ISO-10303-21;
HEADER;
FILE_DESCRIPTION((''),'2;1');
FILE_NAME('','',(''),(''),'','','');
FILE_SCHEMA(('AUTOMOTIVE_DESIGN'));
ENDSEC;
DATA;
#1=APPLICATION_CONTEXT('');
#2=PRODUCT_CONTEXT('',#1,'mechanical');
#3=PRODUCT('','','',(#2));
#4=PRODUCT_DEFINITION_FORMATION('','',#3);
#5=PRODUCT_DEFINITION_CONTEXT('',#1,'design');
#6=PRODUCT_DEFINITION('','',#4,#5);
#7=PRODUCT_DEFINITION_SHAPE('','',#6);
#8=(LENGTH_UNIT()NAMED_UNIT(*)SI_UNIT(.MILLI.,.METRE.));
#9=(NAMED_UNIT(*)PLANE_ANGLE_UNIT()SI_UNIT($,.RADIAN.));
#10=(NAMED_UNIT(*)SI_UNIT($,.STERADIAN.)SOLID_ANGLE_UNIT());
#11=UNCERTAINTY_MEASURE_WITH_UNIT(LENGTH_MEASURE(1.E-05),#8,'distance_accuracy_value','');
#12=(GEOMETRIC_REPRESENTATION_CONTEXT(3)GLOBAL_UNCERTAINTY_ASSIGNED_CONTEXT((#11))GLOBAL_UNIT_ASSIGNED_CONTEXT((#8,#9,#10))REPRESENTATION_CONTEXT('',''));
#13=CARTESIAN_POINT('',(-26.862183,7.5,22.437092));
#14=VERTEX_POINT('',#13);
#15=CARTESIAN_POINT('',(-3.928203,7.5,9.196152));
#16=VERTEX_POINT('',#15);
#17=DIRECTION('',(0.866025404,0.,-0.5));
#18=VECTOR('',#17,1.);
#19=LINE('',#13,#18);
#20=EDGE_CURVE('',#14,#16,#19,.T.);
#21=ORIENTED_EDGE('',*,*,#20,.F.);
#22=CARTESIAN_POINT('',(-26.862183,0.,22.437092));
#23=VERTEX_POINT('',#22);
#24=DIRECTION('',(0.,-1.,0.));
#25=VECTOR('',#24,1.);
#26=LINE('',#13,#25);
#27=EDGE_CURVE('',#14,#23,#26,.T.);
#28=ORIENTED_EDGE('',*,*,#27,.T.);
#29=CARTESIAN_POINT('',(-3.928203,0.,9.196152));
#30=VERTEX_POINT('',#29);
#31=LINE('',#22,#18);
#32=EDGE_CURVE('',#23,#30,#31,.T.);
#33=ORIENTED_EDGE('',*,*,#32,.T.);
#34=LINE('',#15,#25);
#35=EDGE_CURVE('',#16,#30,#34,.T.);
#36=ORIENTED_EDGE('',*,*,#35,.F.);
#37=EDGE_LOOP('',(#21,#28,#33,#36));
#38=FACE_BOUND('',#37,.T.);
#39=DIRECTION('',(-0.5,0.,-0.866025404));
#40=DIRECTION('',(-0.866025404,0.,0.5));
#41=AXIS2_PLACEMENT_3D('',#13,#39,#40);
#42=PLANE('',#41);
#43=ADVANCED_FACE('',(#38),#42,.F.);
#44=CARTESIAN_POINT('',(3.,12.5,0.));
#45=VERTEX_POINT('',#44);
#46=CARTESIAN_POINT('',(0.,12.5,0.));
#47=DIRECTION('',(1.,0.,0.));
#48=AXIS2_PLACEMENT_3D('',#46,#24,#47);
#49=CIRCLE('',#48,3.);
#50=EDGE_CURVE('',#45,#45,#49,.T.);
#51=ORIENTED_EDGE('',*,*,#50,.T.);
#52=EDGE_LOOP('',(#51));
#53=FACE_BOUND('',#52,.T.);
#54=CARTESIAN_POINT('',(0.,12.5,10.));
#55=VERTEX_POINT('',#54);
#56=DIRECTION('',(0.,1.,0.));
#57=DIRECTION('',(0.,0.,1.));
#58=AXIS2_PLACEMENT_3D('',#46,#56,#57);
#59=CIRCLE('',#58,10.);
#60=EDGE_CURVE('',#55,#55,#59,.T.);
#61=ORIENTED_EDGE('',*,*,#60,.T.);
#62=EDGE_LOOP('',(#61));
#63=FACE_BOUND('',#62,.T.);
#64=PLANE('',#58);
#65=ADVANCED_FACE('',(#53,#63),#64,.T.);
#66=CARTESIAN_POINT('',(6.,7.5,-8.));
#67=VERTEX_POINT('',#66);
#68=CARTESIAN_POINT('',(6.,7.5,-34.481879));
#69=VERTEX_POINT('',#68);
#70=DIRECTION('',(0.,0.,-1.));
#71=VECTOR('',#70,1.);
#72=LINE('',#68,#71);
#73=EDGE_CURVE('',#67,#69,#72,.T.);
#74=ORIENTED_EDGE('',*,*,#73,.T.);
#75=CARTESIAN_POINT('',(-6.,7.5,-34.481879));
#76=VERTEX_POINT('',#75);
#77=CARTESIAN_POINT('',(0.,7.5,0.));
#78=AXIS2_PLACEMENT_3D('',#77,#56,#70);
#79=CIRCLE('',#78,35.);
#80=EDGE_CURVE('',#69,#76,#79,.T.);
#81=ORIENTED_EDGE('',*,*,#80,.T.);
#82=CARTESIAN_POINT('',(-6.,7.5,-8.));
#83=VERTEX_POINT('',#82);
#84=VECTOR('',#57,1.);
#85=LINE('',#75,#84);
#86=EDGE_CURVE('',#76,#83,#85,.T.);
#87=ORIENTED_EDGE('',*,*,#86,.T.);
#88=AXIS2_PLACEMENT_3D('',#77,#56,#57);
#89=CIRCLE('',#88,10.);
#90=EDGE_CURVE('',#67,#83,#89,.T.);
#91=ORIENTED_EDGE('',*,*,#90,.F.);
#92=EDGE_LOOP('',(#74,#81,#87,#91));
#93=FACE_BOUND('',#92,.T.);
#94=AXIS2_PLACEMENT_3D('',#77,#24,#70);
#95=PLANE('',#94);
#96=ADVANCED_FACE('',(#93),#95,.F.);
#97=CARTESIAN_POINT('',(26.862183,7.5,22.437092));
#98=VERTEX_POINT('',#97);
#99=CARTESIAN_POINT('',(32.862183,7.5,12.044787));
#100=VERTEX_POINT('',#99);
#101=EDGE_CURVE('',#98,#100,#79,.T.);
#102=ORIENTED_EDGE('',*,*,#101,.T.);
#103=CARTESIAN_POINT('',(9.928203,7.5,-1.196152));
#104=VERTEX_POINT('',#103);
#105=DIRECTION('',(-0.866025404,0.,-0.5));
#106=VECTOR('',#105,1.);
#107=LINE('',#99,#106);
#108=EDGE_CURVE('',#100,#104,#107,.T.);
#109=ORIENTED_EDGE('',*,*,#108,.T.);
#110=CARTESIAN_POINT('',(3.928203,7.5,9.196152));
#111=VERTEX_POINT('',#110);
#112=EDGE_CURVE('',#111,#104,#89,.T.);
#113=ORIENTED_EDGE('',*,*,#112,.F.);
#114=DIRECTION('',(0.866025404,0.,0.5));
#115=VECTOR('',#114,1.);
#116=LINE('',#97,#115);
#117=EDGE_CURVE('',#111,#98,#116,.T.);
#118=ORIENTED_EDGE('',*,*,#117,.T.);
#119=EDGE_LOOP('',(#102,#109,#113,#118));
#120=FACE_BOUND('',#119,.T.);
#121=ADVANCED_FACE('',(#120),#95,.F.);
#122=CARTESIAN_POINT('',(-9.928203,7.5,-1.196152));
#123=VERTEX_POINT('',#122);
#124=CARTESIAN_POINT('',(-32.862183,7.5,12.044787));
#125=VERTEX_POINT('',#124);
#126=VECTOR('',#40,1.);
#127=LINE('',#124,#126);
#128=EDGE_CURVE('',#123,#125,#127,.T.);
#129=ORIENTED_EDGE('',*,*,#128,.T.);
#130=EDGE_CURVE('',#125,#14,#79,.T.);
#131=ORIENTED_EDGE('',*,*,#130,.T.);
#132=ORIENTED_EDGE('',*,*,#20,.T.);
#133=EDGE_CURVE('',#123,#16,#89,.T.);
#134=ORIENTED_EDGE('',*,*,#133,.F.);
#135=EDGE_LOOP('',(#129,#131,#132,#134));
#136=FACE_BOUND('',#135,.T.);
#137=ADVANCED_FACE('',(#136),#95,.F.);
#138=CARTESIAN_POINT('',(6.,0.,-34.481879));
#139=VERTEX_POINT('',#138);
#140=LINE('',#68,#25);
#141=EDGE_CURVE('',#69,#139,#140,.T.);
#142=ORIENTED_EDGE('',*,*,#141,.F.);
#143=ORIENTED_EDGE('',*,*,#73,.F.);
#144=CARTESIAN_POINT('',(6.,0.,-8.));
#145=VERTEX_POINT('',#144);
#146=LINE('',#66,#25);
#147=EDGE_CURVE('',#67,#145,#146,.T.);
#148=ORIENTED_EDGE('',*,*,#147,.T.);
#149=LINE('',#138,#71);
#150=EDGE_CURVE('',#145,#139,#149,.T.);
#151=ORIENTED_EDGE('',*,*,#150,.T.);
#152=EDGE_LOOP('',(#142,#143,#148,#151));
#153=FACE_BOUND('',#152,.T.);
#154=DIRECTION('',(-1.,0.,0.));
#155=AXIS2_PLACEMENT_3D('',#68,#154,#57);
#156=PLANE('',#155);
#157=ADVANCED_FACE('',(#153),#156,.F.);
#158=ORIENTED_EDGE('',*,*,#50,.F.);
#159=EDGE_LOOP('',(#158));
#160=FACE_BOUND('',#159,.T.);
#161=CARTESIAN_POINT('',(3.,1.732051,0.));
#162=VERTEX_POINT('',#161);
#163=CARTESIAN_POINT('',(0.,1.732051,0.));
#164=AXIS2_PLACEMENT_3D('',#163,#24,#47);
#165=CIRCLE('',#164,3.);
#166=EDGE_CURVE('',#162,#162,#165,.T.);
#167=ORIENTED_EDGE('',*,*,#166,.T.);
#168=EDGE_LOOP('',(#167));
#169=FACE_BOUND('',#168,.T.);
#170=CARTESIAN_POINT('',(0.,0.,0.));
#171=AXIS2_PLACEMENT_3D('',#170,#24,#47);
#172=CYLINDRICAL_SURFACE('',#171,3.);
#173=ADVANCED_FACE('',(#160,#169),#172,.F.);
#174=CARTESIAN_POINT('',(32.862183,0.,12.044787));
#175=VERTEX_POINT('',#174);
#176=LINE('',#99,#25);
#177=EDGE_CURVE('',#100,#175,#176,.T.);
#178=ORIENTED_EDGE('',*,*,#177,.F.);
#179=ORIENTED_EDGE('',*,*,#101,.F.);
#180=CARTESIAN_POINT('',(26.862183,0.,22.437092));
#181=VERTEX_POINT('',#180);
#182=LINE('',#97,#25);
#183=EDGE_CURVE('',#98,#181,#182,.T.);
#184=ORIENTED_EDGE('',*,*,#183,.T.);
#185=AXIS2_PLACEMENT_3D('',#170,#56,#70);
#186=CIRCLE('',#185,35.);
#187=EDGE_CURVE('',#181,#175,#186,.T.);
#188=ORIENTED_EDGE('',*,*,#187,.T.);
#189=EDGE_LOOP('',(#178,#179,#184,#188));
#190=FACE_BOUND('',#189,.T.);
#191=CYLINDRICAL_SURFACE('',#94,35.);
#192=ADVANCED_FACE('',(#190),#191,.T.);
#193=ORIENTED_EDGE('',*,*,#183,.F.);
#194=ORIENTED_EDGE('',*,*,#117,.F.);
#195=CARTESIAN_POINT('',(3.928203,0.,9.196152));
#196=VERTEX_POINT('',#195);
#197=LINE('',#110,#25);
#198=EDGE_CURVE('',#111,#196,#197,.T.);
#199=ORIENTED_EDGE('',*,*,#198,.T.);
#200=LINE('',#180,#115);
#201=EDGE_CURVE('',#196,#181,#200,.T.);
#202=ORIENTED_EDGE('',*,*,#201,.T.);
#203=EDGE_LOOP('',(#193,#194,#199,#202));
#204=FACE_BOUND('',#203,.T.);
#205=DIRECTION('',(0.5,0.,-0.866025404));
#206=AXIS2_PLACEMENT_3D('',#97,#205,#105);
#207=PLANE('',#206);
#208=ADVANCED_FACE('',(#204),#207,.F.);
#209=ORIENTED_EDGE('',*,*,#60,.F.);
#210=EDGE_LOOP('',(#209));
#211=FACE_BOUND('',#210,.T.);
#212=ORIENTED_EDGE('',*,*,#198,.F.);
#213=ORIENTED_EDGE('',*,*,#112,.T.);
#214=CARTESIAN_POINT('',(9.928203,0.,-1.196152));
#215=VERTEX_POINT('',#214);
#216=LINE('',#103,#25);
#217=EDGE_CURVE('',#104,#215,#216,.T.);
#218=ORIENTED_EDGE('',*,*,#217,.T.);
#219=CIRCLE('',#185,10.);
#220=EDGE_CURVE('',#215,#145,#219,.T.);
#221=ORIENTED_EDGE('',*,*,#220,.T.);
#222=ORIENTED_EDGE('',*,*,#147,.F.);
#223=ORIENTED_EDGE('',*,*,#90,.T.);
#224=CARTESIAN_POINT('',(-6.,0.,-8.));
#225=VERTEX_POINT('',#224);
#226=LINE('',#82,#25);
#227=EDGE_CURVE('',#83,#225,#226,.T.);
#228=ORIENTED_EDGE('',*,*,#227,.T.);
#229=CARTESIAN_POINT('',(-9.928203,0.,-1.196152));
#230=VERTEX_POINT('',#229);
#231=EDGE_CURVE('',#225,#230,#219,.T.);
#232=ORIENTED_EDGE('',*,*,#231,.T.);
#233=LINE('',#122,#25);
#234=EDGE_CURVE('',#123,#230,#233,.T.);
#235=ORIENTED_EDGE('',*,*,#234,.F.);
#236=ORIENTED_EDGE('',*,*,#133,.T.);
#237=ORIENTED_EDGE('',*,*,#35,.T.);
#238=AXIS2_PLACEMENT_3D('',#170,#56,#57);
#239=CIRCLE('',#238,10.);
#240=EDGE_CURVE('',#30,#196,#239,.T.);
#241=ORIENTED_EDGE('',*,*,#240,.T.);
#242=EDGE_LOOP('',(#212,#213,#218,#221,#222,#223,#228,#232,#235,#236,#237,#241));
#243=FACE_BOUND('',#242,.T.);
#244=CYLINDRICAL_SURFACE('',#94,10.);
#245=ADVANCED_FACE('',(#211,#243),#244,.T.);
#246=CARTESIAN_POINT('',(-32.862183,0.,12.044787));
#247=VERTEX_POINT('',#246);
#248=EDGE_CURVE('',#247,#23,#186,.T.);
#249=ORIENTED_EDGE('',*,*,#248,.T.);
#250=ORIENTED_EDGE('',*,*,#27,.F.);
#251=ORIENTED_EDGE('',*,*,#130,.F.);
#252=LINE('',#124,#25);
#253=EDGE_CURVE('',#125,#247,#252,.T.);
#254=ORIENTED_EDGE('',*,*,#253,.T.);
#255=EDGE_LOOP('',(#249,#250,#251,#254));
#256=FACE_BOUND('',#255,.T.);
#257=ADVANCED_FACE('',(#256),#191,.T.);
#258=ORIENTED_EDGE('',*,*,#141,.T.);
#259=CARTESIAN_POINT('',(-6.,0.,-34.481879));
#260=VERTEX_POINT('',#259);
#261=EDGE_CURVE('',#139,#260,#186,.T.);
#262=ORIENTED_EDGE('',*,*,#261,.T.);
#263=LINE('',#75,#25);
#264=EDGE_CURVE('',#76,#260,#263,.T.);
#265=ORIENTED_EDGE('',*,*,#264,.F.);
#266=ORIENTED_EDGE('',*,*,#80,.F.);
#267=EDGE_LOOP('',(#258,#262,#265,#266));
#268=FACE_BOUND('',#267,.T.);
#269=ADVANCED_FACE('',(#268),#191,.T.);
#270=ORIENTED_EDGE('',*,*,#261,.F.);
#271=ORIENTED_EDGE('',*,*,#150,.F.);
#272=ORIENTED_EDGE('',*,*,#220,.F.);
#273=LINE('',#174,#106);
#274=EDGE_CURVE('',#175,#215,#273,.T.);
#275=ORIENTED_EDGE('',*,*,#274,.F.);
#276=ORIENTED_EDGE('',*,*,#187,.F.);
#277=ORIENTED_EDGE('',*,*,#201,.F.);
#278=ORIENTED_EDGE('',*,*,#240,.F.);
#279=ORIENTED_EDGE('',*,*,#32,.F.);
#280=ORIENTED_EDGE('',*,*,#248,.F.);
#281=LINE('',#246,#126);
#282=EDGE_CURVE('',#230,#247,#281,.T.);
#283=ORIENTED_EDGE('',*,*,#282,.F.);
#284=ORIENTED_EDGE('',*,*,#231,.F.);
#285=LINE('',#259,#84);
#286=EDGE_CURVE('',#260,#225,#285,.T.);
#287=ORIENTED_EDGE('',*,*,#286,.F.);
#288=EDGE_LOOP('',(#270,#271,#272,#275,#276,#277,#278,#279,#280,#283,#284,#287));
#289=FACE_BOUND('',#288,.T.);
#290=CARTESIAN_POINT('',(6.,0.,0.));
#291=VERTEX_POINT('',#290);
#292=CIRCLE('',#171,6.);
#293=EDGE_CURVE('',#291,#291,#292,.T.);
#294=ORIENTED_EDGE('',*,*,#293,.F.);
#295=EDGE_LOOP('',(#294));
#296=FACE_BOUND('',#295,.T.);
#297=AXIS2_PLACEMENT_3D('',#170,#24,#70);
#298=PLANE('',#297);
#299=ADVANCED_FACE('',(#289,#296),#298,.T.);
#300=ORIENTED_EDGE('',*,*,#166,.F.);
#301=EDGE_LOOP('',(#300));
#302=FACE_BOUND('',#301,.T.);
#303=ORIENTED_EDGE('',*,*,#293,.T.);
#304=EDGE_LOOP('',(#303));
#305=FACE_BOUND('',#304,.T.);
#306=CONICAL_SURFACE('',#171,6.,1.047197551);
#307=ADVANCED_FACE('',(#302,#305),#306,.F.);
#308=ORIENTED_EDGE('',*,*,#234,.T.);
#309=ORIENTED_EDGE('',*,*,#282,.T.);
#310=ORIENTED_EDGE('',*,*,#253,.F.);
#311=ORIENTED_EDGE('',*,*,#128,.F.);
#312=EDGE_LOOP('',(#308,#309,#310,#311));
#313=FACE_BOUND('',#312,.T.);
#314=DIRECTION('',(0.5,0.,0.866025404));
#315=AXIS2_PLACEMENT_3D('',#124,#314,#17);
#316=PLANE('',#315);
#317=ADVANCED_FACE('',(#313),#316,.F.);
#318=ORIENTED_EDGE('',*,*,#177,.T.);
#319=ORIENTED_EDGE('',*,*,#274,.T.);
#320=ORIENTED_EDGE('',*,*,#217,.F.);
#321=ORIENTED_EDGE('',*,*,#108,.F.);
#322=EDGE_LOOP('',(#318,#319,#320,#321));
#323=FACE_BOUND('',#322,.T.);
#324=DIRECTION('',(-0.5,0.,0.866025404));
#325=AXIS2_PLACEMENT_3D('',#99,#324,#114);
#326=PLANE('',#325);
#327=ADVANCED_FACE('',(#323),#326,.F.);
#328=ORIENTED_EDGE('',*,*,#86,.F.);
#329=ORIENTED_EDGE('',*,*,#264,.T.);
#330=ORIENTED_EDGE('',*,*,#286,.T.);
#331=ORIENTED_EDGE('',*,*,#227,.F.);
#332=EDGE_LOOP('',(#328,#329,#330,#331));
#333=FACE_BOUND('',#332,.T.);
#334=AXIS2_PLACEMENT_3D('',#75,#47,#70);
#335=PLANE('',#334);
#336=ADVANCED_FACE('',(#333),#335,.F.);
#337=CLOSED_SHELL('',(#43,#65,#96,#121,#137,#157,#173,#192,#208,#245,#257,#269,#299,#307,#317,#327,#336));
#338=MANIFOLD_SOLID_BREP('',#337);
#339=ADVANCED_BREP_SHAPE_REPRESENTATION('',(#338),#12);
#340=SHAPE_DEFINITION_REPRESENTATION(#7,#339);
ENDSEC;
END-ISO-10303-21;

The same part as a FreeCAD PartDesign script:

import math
import FreeCAD as App
import Part
import Sketcher

V = App.Vector
Q = App.Units.Quantity


def add_polygon(sketch, points):
    """Adds a closed chain of lines whose ends are joined by coincident constraints."""
    first, n = sketch.GeometryCount, len(points)
    for a, b in zip(points, points[1:] + points[:1]):
        sketch.addGeometry(Part.LineSegment(App.Vector(*a, 0), App.Vector(*b, 0)), False)
    for i in range(n):
        sketch.addConstraint(Sketcher.Constraint("Coincident", first + i, 2, first + (i + 1) % n, 1))

doc = App.newDocument("Part")
body = doc.addObject("PartDesign::Body", "Body")

# Sketch on XZ plane
sketch1 = body.newObject("Sketcher::SketchObject", "Sketch")
sketch1.AttachmentSupport = (doc.getObject("XZ_Plane"), [""])
sketch1.MapMode = "FlatFace"
sketch1.addGeometry([
    Part.LineSegment(V(-6, -34.481879, 0), V(-6, -8, 0)),  # 0
    Part.ArcOfCircle(Part.Circle(V(0, 0, 0), V(0, 0, 1), 10), math.radians(-173.130102), math.radians(-126.869898)),  # 1
    Part.LineSegment(V(-9.928203, -1.196152, 0), V(-32.862183, 12.044787, 0)),  # 2
    Part.ArcOfCircle(Part.Circle(V(0, 0, 0), V(0, 0, 1), 35), math.radians(140.12911), math.radians(159.87089)),  # 3
    Part.LineSegment(V(-26.862183, 22.437092, 0), V(-3.928203, 9.196152, 0)),  # 4
    Part.ArcOfCircle(Part.Circle(V(0, 0, 0), V(0, 0, 1), 10), math.radians(66.869898), math.radians(113.130102)),  # 5
    Part.LineSegment(V(3.928203, 9.196152, 0), V(26.862183, 22.437092, 0)),  # 6
    Part.ArcOfCircle(Part.Circle(V(0, 0, 0), V(0, 0, 1), 35), math.radians(20.12911), math.radians(39.87089)),  # 7
    Part.LineSegment(V(32.862183, 12.044787, 0), V(9.928203, -1.196152, 0)),  # 8
    Part.ArcOfCircle(Part.Circle(V(0, 0, 0), V(0, 0, 1), 10), math.radians(-53.130102), math.radians(-6.869898)),  # 9
    Part.LineSegment(V(6, -8, 0), V(6, -34.481879, 0)),  # 10
    Part.ArcOfCircle(Part.Circle(V(0, 0, 0), V(0, 0, 1), 35), math.radians(-99.87089), math.radians(-80.12911)),  # 11
], False)
sketch1.addConstraint([
    Sketcher.Constraint("Coincident", 0, 2, 1, 2),
    Sketcher.Constraint("Coincident", 1, 1, 2, 1),
    Sketcher.Constraint("Coincident", 2, 2, 3, 2),
    Sketcher.Constraint("Coincident", 3, 1, 4, 1),
    Sketcher.Constraint("Coincident", 4, 2, 5, 2),
    Sketcher.Constraint("Coincident", 5, 1, 6, 1),
    Sketcher.Constraint("Coincident", 6, 2, 7, 2),
    Sketcher.Constraint("Coincident", 7, 1, 8, 1),
    Sketcher.Constraint("Coincident", 8, 2, 9, 2),
    Sketcher.Constraint("Coincident", 9, 1, 10, 1),
    Sketcher.Constraint("Coincident", 10, 2, 11, 2),
    Sketcher.Constraint("Coincident", 11, 1, 0, 1),
    Sketcher.Constraint("Vertical", 0),
    Sketcher.Constraint("Vertical", 10),
    Sketcher.Constraint("Coincident", 1, 3, -1, 1),
    Sketcher.Constraint("Coincident", 3, 3, -1, 1),
    Sketcher.Constraint("Coincident", 5, 3, -1, 1),
    Sketcher.Constraint("Coincident", 7, 3, -1, 1),
    Sketcher.Constraint("Coincident", 9, 3, -1, 1),
    Sketcher.Constraint("Coincident", 11, 3, -1, 1),
    Sketcher.Constraint("Equal", 1, 5),
    Sketcher.Constraint("Equal", 3, 7),
    Sketcher.Constraint("Equal", 5, 9),
    Sketcher.Constraint("Equal", 7, 11),
    Sketcher.Constraint("Parallel", 2, 4),
    Sketcher.Constraint("Parallel", 6, 8),
    Sketcher.Constraint("Horizontal", 4, 2, 5, 1),
    Sketcher.Constraint("Horizontal", 3, 1, 6, 2),
    Sketcher.Constraint("Horizontal", 2, 2, 7, 1),
    Sketcher.Constraint("Horizontal", 0, 2, 9, 1),
    Sketcher.Constraint("Equal", 2, 4),
    Sketcher.Constraint("Radius", 1, 10.0),
    Sketcher.Constraint("Radius", 3, 35.0),
    Sketcher.Constraint("Angle", 2, Q("150 deg")),
    Sketcher.Constraint("DistanceX", 0, 2, -1, 1, 6.0),
    Sketcher.Constraint("DistanceX", 2, 2, 3, 1, 6.0),
])
pad1 = body.newObject("PartDesign::Pad", "Pad")
pad1.Profile = sketch1
pad1.Length = 7.5
pad1.Reversed = True

# Sketch on XZ plane
sketch2 = body.newObject("Sketcher::SketchObject", "Sketch001")
sketch2.AttachmentSupport = (doc.getObject("XZ_Plane"), [""])
sketch2.MapMode = "FlatFace"
sketch2.AttachmentOffset = App.Placement(V(0, 0, -7.5), App.Rotation())
sketch2.addGeometry(Part.Circle(V(0, 0, 0), V(0, 0, 1), 10), False)
sketch2.addConstraint([
    Sketcher.Constraint("Coincident", 0, 3, -1, 1),
    Sketcher.Constraint("Diameter", 0, 20.0),
])
pad2 = body.newObject("PartDesign::Pad", "Pad001")
pad2.Profile = sketch2
pad2.Length = 5
pad2.Reversed = True

# Sketch on XY plane
sketch3 = body.newObject("Sketcher::SketchObject", "Sketch002")
sketch3.AttachmentSupport = (doc.getObject("XY_Plane"), [""])
sketch3.MapMode = "FlatFace"
add_polygon(sketch3, [(0, 12.5), (0, 0), (6, 0), (3, 1.732051), (3, 12.5)])  # lines 0-4
sketch3.addConstraint([
    Sketcher.Constraint("Vertical", 0),
    Sketcher.Constraint("Horizontal", 1),
    Sketcher.Constraint("Vertical", 3),
    Sketcher.Constraint("Horizontal", 4),
    Sketcher.Constraint("Coincident", 0, 2, -1, 1),
    Sketcher.Constraint("DistanceX", 1, 1, 1, 2, 6.0),
    Sketcher.Constraint("DistanceX", 4, 2, 4, 1, 3.0),
    Sketcher.Constraint("Angle", 2, Q("150 deg")),
    Sketcher.Constraint("DistanceY", 0, 2, 0, 1, 12.5),
])
groove = body.newObject("PartDesign::Groove", "Groove")
groove.Profile = sketch3
groove.ReferenceAxis = (sketch3, ["V_Axis"])
groove.Angle = 360

doc.recompute()
